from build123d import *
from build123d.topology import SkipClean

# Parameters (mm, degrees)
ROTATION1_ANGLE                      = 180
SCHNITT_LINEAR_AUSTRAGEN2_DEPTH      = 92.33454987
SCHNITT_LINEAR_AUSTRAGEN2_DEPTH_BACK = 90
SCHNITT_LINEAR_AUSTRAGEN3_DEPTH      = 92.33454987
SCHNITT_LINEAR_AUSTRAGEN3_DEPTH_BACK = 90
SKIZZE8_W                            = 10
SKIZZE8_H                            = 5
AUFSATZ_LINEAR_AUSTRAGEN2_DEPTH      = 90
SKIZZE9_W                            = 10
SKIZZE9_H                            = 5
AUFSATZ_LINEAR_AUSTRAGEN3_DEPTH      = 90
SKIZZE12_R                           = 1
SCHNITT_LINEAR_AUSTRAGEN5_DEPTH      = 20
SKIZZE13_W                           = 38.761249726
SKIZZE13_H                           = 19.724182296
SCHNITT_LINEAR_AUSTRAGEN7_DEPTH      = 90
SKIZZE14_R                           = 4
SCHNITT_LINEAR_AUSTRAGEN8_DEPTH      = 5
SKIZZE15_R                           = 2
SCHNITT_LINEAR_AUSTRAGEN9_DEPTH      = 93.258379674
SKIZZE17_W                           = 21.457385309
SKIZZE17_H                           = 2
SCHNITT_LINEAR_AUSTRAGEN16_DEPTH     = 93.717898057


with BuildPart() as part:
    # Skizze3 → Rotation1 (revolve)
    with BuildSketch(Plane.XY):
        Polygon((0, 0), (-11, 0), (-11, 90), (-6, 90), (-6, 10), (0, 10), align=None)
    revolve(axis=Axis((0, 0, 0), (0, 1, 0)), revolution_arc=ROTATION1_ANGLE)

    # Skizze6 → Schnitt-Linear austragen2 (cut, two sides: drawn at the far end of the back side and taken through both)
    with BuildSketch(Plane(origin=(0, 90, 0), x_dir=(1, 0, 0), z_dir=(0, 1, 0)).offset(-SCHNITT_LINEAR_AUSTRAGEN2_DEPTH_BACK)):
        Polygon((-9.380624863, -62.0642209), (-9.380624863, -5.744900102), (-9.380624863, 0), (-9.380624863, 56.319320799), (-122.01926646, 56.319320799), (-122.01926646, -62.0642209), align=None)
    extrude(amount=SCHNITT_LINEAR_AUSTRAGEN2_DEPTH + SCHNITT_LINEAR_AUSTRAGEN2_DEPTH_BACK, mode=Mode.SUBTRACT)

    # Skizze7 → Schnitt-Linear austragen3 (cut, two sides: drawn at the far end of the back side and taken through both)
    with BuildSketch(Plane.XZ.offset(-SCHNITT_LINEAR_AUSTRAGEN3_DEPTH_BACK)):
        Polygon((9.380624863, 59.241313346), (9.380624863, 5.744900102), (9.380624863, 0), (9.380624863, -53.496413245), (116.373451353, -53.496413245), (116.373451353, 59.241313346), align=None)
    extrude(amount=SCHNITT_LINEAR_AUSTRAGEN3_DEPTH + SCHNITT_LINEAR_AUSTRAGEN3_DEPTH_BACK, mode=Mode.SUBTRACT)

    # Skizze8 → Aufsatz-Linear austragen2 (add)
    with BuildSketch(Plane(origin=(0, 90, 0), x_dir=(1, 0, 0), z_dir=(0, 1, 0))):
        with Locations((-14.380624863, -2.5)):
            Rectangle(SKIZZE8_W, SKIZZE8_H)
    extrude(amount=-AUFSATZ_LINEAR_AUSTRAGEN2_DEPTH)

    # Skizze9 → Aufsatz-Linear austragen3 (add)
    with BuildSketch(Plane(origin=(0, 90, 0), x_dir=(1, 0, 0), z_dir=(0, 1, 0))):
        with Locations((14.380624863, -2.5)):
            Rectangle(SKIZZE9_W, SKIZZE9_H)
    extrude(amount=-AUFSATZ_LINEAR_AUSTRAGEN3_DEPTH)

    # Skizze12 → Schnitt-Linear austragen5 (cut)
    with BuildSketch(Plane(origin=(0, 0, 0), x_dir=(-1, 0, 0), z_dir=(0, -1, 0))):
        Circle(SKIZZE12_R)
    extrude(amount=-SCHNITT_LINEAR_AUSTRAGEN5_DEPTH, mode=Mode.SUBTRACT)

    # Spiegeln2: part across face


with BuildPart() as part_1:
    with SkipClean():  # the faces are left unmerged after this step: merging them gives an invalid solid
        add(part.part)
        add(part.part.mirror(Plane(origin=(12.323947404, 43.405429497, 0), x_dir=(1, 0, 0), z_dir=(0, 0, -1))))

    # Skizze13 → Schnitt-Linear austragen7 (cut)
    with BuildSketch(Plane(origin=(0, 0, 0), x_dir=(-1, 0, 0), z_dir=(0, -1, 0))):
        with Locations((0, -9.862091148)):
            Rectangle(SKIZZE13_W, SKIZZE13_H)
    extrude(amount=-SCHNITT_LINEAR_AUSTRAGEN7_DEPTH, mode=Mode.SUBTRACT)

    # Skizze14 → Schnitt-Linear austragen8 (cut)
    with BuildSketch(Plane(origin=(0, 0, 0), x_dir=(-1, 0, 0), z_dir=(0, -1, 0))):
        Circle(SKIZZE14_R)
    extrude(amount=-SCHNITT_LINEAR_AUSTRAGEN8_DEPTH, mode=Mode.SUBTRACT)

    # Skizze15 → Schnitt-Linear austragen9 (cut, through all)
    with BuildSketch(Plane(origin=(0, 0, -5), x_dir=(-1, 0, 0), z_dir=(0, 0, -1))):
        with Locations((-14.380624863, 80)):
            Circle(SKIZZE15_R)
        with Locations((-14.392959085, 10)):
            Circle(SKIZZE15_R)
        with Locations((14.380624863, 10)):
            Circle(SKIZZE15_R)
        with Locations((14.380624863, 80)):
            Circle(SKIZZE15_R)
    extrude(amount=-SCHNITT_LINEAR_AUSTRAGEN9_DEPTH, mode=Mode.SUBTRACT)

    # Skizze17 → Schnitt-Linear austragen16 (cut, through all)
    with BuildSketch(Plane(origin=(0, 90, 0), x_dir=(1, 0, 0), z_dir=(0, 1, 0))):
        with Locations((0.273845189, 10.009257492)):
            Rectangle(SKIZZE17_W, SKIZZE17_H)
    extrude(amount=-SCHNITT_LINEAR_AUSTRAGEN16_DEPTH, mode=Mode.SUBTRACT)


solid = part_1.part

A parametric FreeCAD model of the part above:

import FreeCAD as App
import Part
import Sketcher

V = App.Vector


def add_polygon(sketch, points):
    """Adds a closed chain of lines whose ends are joined by coincident constraints."""
    first, n = sketch.GeometryCount, len(points)
    for a, b in zip(points, points[1:] + points[:1]):
        sketch.addGeometry(Part.LineSegment(App.Vector(*a, 0), App.Vector(*b, 0)), False)
    for i in range(n):
        sketch.addConstraint(Sketcher.Constraint("Coincident", first + i, 2, first + (i + 1) % n, 1))

doc = App.newDocument("Part")
params = doc.addObject("Spreadsheet::Sheet", "Params")
for row, (alias, value) in enumerate([
    ("sketch1_width", "11 mm"),
    ("sketch1_width2", "6 mm"),
    ("sketch1_height", "10 mm"),
    ("sketch1_height2", "80 mm"),
    ("revolution_angle", "180 deg"),
    ("sketch4_width", "10 mm"),
    ("sketch4_height", "5 mm"),
    ("pad1_length", "90 mm"),
    ("sketch5_width", "10 mm"),
    ("sketch5_height", "5 mm"),
    ("pad2_length", "90 mm"),
    ("sketch6_diameter", "2 mm"),
    ("pocket3_length", "20 mm"),
    ("pocket4_length", "90 mm"),
    ("sketch8_diameter", "8 mm"),
    ("pocket5_length", "5 mm"),
    ("sketch9_diameter", "4 mm"),
    ("sketch10_height", "2 mm"),
], start=1):
    params.set(f"A{row}", alias)
    params.set(f"B{row}", "=" + value)
    params.setAlias(f"B{row}", alias)

body = doc.addObject("PartDesign::Body", "Body")

sketch1 = body.newObject("Sketcher::SketchObject", "Sketch")
sketch1.AttachmentSupport = (doc.getObject("XY_Plane"), [""])
sketch1.MapMode = "FlatFace"
add_polygon(sketch1, [(-11, 0), (0, 0), (0, 10), (-6, 10), (-6, 90), (-11, 90)])
sketch1.addConstraint(Sketcher.Constraint("Horizontal", 0))
sketch1.addConstraint(Sketcher.Constraint("Vertical", 1))
sketch1.addConstraint(Sketcher.Constraint("Horizontal", 2))
sketch1.addConstraint(Sketcher.Constraint("Vertical", 3))
sketch1.addConstraint(Sketcher.Constraint("Horizontal", 4))
sketch1.addConstraint(Sketcher.Constraint("Vertical", 5))
sketch1.addConstraint(Sketcher.Constraint("Coincident", 0, 2, -1, 1))
sketch1.addConstraint(Sketcher.Constraint("DistanceX", 0, 1, 0, 2, 11.0))
sketch1.addConstraint(Sketcher.Constraint("DistanceX", 2, 2, 2, 1, 6.0))
sketch1.addConstraint(Sketcher.Constraint("DistanceY", 1, 1, 1, 2, 10.0))
sketch1.addConstraint(Sketcher.Constraint("DistanceY", 3, 1, 3, 2, 80.0))
sketch1.setExpression("Constraints[13]", "Params.sketch1_width")
sketch1.setExpression("Constraints[14]", "Params.sketch1_width2")
sketch1.setExpression("Constraints[15]", "Params.sketch1_height")
sketch1.setExpression("Constraints[16]", "Params.sketch1_height2")
revolution = body.newObject("PartDesign::Revolution", "Revolution")
revolution.Profile = sketch1
revolution.ReferenceAxis = (sketch1, ["V_Axis"])
revolution.setExpression("Angle", "Params.revolution_angle")

sketch2 = body.newObject("Sketcher::SketchObject", "Sketch001")
sketch2.AttachmentSupport = (doc.getObject("XZ_Plane"), [""])
sketch2.MapMode = "FlatFace"
sketch2.AttachmentOffset = App.Placement(V(0, 0, -90), App.Rotation())
add_polygon(sketch2, [(-9.380625, 62.064221), (-9.380625, -56.319321), (-122.019266, -56.319321), (-122.019266, 62.064221)])
sketch2.addConstraint(Sketcher.Constraint("Vertical", 0))
sketch2.addConstraint(Sketcher.Constraint("Horizontal", 1))
sketch2.addConstraint(Sketcher.Constraint("Vertical", 2))
sketch2.addConstraint(Sketcher.Constraint("Horizontal", 3))
sketch2.addConstraint(Sketcher.Constraint("DistanceX", 1, 2, 1, 1, 112.638642))
sketch2.addConstraint(Sketcher.Constraint("DistanceY", 0, 2, 0, 1, 118.383542))
sketch2.addConstraint(Sketcher.Constraint("DistanceY", 0, 2, -1, 1, 56.319321))
sketch2.addConstraint(Sketcher.Constraint("DistanceX", 0, 2, -1, 1, 9.380625))
pocket1 = body.newObject("PartDesign::Pocket", "Pocket")
pocket1.Profile = sketch2
pocket1.Type = "ThroughAll"
pocket1.Midplane = True

sketch3 = body.newObject("Sketcher::SketchObject", "Sketch002")
sketch3.AttachmentSupport = (doc.getObject("XZ_Plane"), [""])
sketch3.MapMode = "FlatFace"
add_polygon(sketch3, [(9.380625, 59.241313), (9.380625, -53.496413), (116.373451, -53.496413), (116.373451, 59.241313)])
sketch3.addConstraint(Sketcher.Constraint("Vertical", 0))
sketch3.addConstraint(Sketcher.Constraint("Horizontal", 1))
sketch3.addConstraint(Sketcher.Constraint("Vertical", 2))
sketch3.addConstraint(Sketcher.Constraint("Horizontal", 3))
sketch3.addConstraint(Sketcher.Constraint("DistanceX", 1, 1, 1, 2, 106.992826))
sketch3.addConstraint(Sketcher.Constraint("DistanceY", 0, 2, 0, 1, 112.737727))
sketch3.addConstraint(Sketcher.Constraint("DistanceX", -1, 1, 1, 2, 116.373451))
sketch3.addConstraint(Sketcher.Constraint("DistanceY", 0, 2, -1, 1, 53.496413))
pocket2 = body.newObject("PartDesign::Pocket", "Pocket001")
pocket2.Profile = sketch3
pocket2.Type = "ThroughAll"
pocket2.Midplane = True

sketch4 = body.newObject("Sketcher::SketchObject", "Sketch003")
sketch4.AttachmentSupport = (doc.getObject("XZ_Plane"), [""])
sketch4.MapMode = "FlatFace"
sketch4.AttachmentOffset = App.Placement(V(0, 0, -90), App.Rotation())
add_polygon(sketch4, [(-19.380625, 0), (-19.380625, 5), (-9.380625, 5), (-9.380625, 0)])
sketch4.addConstraint(Sketcher.Constraint("Vertical", 0))
sketch4.addConstraint(Sketcher.Constraint("Horizontal", 1))
sketch4.addConstraint(Sketcher.Constraint("Vertical", 2))
sketch4.addConstraint(Sketcher.Constraint("Horizontal", 3))
sketch4.addConstraint(Sketcher.Constraint("PointOnObject", 2, 2, -1))
sketch4.addConstraint(Sketcher.Constraint("DistanceX", 1, 1, 1, 2, 10.0))
sketch4.addConstraint(Sketcher.Constraint("DistanceY", 0, 1, 0, 2, 5.0))
sketch4.addConstraint(Sketcher.Constraint("DistanceX", 0, 2, -1, 1, 19.380625))
sketch4.setExpression("Constraints[9]", "Params.sketch4_width")
sketch4.setExpression("Constraints[10]", "Params.sketch4_height")
pad1 = body.newObject("PartDesign::Pad", "Pad")
pad1.Profile = sketch4
pad1.setExpression("Length", "Params.pad1_length")

sketch5 = body.newObject("Sketcher::SketchObject", "Sketch004")
sketch5.AttachmentSupport = (doc.getObject("XZ_Plane"), [""])
sketch5.MapMode = "FlatFace"
sketch5.AttachmentOffset = App.Placement(V(0, 0, -90), App.Rotation())
add_polygon(sketch5, [(9.380625, 0), (9.380625, 5), (19.380625, 5), (19.380625, 0)])
sketch5.addConstraint(Sketcher.Constraint("Vertical", 0))
sketch5.addConstraint(Sketcher.Constraint("Horizontal", 1))
sketch5.addConstraint(Sketcher.Constraint("Vertical", 2))
sketch5.addConstraint(Sketcher.Constraint("Horizontal", 3))
sketch5.addConstraint(Sketcher.Constraint("PointOnObject", 2, 2, -1))
sketch5.addConstraint(Sketcher.Constraint("DistanceX", 1, 1, 1, 2, 10.0))
sketch5.addConstraint(Sketcher.Constraint("DistanceY", 0, 1, 0, 2, 5.0))
sketch5.addConstraint(Sketcher.Constraint("DistanceX", -1, 1, 0, 2, 9.380625))
sketch5.setExpression("Constraints[9]", "Params.sketch5_width")
sketch5.setExpression("Constraints[10]", "Params.sketch5_height")
pad2 = body.newObject("PartDesign::Pad", "Pad001")
pad2.Profile = sketch5
pad2.setExpression("Length", "Params.pad2_length")

sketch6 = body.newObject("Sketcher::SketchObject", "Sketch005")
sketch6.AttachmentSupport = (doc.getObject("XZ_Plane"), [""])
sketch6.MapMode = "FlatFace"
sketch6.addGeometry(Part.Circle(V(0, 0, 0), V(0, 0, 1), 1), False)
sketch6.addConstraint(Sketcher.Constraint("Coincident", 0, 3, -1, 1))
sketch6.addConstraint(Sketcher.Constraint("Diameter", 0, 2.0))
sketch6.setExpression("Constraints[1]", "Params.sketch6_diameter")
pocket3 = body.newObject("PartDesign::Pocket", "Pocket002")
pocket3.Profile = sketch6
pocket3.setExpression("Length", "Params.pocket3_length")
body2 = doc.addObject("PartDesign::Body", "Body001")
doc.recompute()

body2.BaseFeature = body
doc.recompute()

mirroring = doc.addObject("Part::Mirroring", "Mirroring")
mirroring.Source = body
mirroring.Base = V(12.323947, 43.405429, 0)
mirroring.Normal = V(0, 0, -1)
body3 = doc.addObject("PartDesign::Body", "Body002")
body3.BaseFeature = mirroring
boolean = body2.newObject("PartDesign::Boolean", "Boolean")
boolean.Type = "Fuse"
boolean.addObjects([body3])
doc.recompute()

sketch7 = body2.newObject("Sketcher::SketchObject", "Sketch006")
sketch7.AttachmentSupport = (doc.getObject("XZ_Plane001"), [""])
sketch7.MapMode = "FlatFace"
add_polygon(sketch7, [(19.380625, 0), (19.380625, 19.724182), (-19.380625, 19.724182), (-19.380625, 0)])
sketch7.addConstraint(Sketcher.Constraint("Vertical", 0))
sketch7.addConstraint(Sketcher.Constraint("Horizontal", 1))
sketch7.addConstraint(Sketcher.Constraint("Vertical", 2))
sketch7.addConstraint(Sketcher.Constraint("Horizontal", 3))
sketch7.addConstraint(Sketcher.Constraint("Symmetric", 2, 2, 3, 2, -1, 1))
sketch7.addConstraint(Sketcher.Constraint("DistanceX", 1, 2, 1, 1, 38.76125))
sketch7.addConstraint(Sketcher.Constraint("DistanceY", 0, 1, 0, 2, 19.724182))
pocket4 = body2.newObject("PartDesign::Pocket", "Pocket003")
pocket4.Profile = sketch7
pocket4.setExpression("Length", "Params.pocket4_length")

sketch8 = body2.newObject("Sketcher::SketchObject", "Sketch007")
sketch8.AttachmentSupport = (doc.getObject("XZ_Plane001"), [""])
sketch8.MapMode = "FlatFace"
sketch8.addGeometry(Part.Circle(V(0, 0, 0), V(0, 0, 1), 4), False)
sketch8.addConstraint(Sketcher.Constraint("Coincident", 0, 3, -1, 1))
sketch8.addConstraint(Sketcher.Constraint("Diameter", 0, 8.0))
sketch8.setExpression("Constraints[1]", "Params.sketch8_diameter")
pocket5 = body2.newObject("PartDesign::Pocket", "Pocket004")
pocket5.Profile = sketch8
pocket5.setExpression("Length", "Params.pocket5_length")

sketch9 = body2.newObject("Sketcher::SketchObject", "Sketch008")
sketch9.AttachmentSupport = (doc.getObject("XY_Plane001"), [""])
sketch9.MapMode = "FlatFace"
sketch9.AttachmentOffset = App.Placement(V(0, 0, -5), App.Rotation())
sketch9.addGeometry(Part.Circle(V(14.380625, 80, 0), V(0, 0, 1), 2), False)
sketch9.addGeometry(Part.Circle(V(14.392959, 10, 0), V(0, 0, 1), 2), False)
sketch9.addGeometry(Part.Circle(V(-14.380625, 10, 0), V(0, 0, 1), 2), False)
sketch9.addGeometry(Part.Circle(V(-14.380625, 80, 0), V(0, 0, 1), 2), False)
sketch9.addConstraint(Sketcher.Constraint("Equal", 0, 1))
sketch9.addConstraint(Sketcher.Constraint("Equal", 1, 2))
sketch9.addConstraint(Sketcher.Constraint("Equal", 2, 3))
sketch9.addConstraint(Sketcher.Constraint("Symmetric", 0, 3, 3, 3, -2))
sketch9.addConstraint(Sketcher.Constraint("Horizontal", 1, 3, 2, 3))
sketch9.addConstraint(Sketcher.Constraint("Vertical", 2, 3, 3, 3))
sketch9.addConstraint(Sketcher.Constraint("Diameter", 0, 4.0))
sketch9.addConstraint(Sketcher.Constraint("DistanceY", -1, 1, 0, 3, 80.0))
sketch9.addConstraint(Sketcher.Constraint("DistanceY", -1, 1, 1, 3, 10.0))
sketch9.addConstraint(Sketcher.Constraint("DistanceX", -1, 1, 1, 3, 14.392959))
sketch9.addConstraint(Sketcher.Constraint("DistanceX", 2, 3, 0, 3, 28.76125))
sketch9.setExpression("Constraints[6]", "Params.sketch9_diameter")
pocket6 = body2.newObject("PartDesign::Pocket", "Pocket005")
pocket6.Profile = sketch9
pocket6.Type = "ThroughAll"
pocket6.Reversed = True

sketch10 = body2.newObject("Sketcher::SketchObject", "Sketch009")
sketch10.AttachmentSupport = (doc.getObject("XZ_Plane001"), [""])
sketch10.MapMode = "FlatFace"
sketch10.AttachmentOffset = App.Placement(V(0, 0, -90), App.Rotation())
add_polygon(sketch10, [(-10.454847, -11.009257), (-10.454847, -9.009257), (11.002538, -9.009257), (11.002538, -11.009257)])
sketch10.addConstraint(Sketcher.Constraint("Vertical", 0))
sketch10.addConstraint(Sketcher.Constraint("Horizontal", 1))
sketch10.addConstraint(Sketcher.Constraint("Vertical", 2))
sketch10.addConstraint(Sketcher.Constraint("Horizontal", 3))
sketch10.addConstraint(Sketcher.Constraint("DistanceY", 0, 1, 0, 2, 2.0))
sketch10.addConstraint(Sketcher.Constraint("DistanceX", 1, 1, 1, 2, 21.457385))
sketch10.addConstraint(Sketcher.Constraint("DistanceX", 0, 2, -1, 1, 10.454847))
sketch10.addConstraint(Sketcher.Constraint("DistanceY", 0, 2, -1, 1, 9.009257))
sketch10.setExpression("Constraints[8]", "Params.sketch10_height")
pocket7 = body2.newObject("PartDesign::Pocket", "Pocket006")
pocket7.Profile = sketch10
pocket7.Type = "ThroughAll"
pocket7.Reversed = True
mirroring.Visibility = False

doc.recompute()
